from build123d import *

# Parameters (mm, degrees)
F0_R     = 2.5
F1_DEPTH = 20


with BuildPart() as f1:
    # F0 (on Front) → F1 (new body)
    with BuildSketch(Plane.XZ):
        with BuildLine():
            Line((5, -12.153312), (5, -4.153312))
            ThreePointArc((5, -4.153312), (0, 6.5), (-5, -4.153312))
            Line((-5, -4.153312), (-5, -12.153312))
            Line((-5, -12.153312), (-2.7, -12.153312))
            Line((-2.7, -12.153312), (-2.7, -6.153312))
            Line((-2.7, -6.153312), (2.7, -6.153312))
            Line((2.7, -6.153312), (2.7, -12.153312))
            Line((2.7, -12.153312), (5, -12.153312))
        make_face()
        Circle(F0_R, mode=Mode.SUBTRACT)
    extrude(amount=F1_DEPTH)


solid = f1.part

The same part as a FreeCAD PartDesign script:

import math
import FreeCAD as App
import Part
import Sketcher
Q = App.Units.Quantity

doc = App.newDocument("Part")
body = doc.addObject("PartDesign::Body", "Body")

# Sketch on XZ plane
sketch1 = doc.addObject("Sketcher::SketchObject", "Sketch")
body.addObject(sketch1)
sketch1.AttachmentSupport = (doc.XZ_Plane, [""])
sketch1.MapMode = "FlatFace"
sketch1.addGeometry([
    Part.LineSegment(App.Vector(5, -12.2, 0), App.Vector(5, -4.2, 0)),  # 0
    Part.ArcOfCircle(Part.Circle(App.Vector(0, 0, 0), App.Vector(0, 0, 1), 6.5), math.radians(-40), math.radians(220)),  # 1
    Part.LineSegment(App.Vector(-5, -4.2, 0), App.Vector(-5, -12.2, 0)),  # 2
    Part.LineSegment(App.Vector(-5, -12.2, 0), App.Vector(-2.7, -12.2, 0)),  # 3
    Part.LineSegment(App.Vector(-2.7, -12.2, 0), App.Vector(-2.7, -6.2, 0)),  # 4
    Part.LineSegment(App.Vector(-2.7, -6.2, 0), App.Vector(2.7, -6.2, 0)),  # 5
    Part.LineSegment(App.Vector(2.7, -6.2, 0), App.Vector(2.7, -12.2, 0)),  # 6
    Part.LineSegment(App.Vector(2.7, -12.2, 0), App.Vector(5, -12.2, 0)),  # 7
    Part.Circle(App.Vector(0, 0, 0), App.Vector(0, 0, 1), 2.5),  # 8
], False)
sketch1.addConstraint([
    Sketcher.Constraint("Coincident", 0, 2, 1, 1),
    Sketcher.Constraint("Coincident", 1, 2, 2, 1),
    Sketcher.Constraint("Coincident", 2, 2, 3, 1),
    Sketcher.Constraint("Coincident", 3, 2, 4, 1),
    Sketcher.Constraint("Coincident", 4, 2, 5, 1),
    Sketcher.Constraint("Coincident", 5, 2, 6, 1),
    Sketcher.Constraint("Coincident", 6, 2, 7, 1),
    Sketcher.Constraint("Coincident", 7, 2, 0, 1),
    Sketcher.Constraint("Vertical", 0),
    Sketcher.Constraint("Vertical", 2),
    Sketcher.Constraint("Horizontal", 3),
    Sketcher.Constraint("Vertical", 4),
    Sketcher.Constraint("Horizontal", 5),
    Sketcher.Constraint("Vertical", 6),
    Sketcher.Constraint("Horizontal", 7),
    Sketcher.Constraint("Coincident", 1, 3, -1, 1),
    Sketcher.Constraint("Coincident", 8, 3, -1, 1),
    Sketcher.Constraint("Symmetric", 3, 2, 6, 2, -2),
    Sketcher.Constraint("Horizontal", 0, 2, 1, 2),
    Sketcher.Constraint("Diameter", 8, Q("5 mm")),
    Sketcher.Constraint("Radius", 1, Q("6.5 mm")),
    Sketcher.Constraint("DistanceY", 0, 1, 0, 2, Q("8 mm")),
    Sketcher.Constraint("DistanceY", 4, 1, 4, 2, Q("6 mm")),
    Sketcher.Constraint("DistanceX", 3, 1, 3, 2, Q("2.3 mm")),
    Sketcher.Constraint("DistanceX", 5, 1, 5, 2, Q("5.4 mm")),
])
pad1 = doc.addObject("PartDesign::Pad", "Pad")
body.addObject(pad1)
pad1.Profile = sketch1
pad1.Length = 20

doc.recompute()
